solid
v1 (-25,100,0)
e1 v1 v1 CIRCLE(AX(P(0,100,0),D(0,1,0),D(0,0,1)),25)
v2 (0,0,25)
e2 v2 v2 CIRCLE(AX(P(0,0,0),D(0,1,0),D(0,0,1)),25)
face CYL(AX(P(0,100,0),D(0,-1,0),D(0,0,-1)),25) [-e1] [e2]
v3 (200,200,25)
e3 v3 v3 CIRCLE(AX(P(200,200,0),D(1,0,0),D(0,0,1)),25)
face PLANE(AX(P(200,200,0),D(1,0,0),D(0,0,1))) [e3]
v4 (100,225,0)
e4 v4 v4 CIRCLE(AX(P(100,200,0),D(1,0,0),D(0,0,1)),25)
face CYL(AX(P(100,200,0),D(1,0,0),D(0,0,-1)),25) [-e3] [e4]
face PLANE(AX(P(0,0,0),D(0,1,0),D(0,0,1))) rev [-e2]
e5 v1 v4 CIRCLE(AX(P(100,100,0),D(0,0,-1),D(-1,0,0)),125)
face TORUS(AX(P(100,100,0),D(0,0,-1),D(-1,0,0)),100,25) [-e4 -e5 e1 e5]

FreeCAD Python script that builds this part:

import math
import FreeCAD as App
import Part
import Sketcher
from FreeCAD import Vector
Q = App.Units.Quantity

doc = App.newDocument("Part")
params = doc.addObject("Spreadsheet::Sheet", "Params")
for row, (alias, value) in enumerate([
    ("sketch1_diameter", "50 mm"),
    ("sketch2_radius", "100 mm"),
    ("sketch2_width", "100 mm"),
], start=1):
    params.set(f"A{row}", alias)
    params.set(f"B{row}", "=" + value)
    params.setAlias(f"B{row}", alias)

body = doc.addObject("PartDesign::Body", "Body")

sketch1 = doc.addObject("Sketcher::SketchObject", "Sketch")
body.addObject(sketch1)
sketch1.AttachmentSupport = (doc.XZ_Plane, [""])
sketch1.MapMode = "FlatFace"
sketch1.addGeometry(Part.Circle(Vector(0, 0, 0), Vector(0, 0, 1), 25), False)
sketch1.addConstraint([
    Sketcher.Constraint("Coincident", 0, 3, -1, 1),
    Sketcher.Constraint("Diameter", 0, Q("50 mm")),
])
sketch1.setExpression("Constraints[1]", "Params.sketch1_diameter")

sketch2 = doc.addObject("Sketcher::SketchObject", "Sketch001")
body.addObject(sketch2)
sketch2.AttachmentSupport = (doc.XY_Plane, [""])
sketch2.MapMode = "FlatFace"
sketch2.addGeometry([
    Part.LineSegment(Vector(0, 0, 0), Vector(0, 100, 0)),
    Part.ArcOfCircle(Part.Circle(Vector(100, 100, 0), Vector(0, 0, 1), 100), math.radians(90), math.radians(180)),
    Part.LineSegment(Vector(100, 200, 0), Vector(200, 200, 0)),
], False)
sketch2.addConstraint([
    Sketcher.Constraint("Tangent", 0, 2, 1, 2),
    Sketcher.Constraint("Tangent", 1, 1, 2, 1),
    Sketcher.Constraint("Vertical", 0),
    Sketcher.Constraint("Horizontal", 2),
    Sketcher.Constraint("Coincident", 0, 1, -1, 1),
    Sketcher.Constraint("Equal", 2, 0),
    Sketcher.Constraint("Radius", 1, Q("100 mm")),
    Sketcher.Constraint("DistanceX", 2, 1, 2, 2, Q("100 mm")),
])
sketch2.setExpression("Constraints[6]", "Params.sketch2_radius")
sketch2.setExpression("Constraints[7]", "Params.sketch2_width")
doc.recompute()

additivepipe = doc.addObject("PartDesign::AdditivePipe", "AdditivePipe")
body.addObject(additivepipe)
additivepipe.Profile = sketch1
additivepipe.Spine = (sketch2, ["Edge1", "Edge2", "Edge3"])

doc.recompute()
